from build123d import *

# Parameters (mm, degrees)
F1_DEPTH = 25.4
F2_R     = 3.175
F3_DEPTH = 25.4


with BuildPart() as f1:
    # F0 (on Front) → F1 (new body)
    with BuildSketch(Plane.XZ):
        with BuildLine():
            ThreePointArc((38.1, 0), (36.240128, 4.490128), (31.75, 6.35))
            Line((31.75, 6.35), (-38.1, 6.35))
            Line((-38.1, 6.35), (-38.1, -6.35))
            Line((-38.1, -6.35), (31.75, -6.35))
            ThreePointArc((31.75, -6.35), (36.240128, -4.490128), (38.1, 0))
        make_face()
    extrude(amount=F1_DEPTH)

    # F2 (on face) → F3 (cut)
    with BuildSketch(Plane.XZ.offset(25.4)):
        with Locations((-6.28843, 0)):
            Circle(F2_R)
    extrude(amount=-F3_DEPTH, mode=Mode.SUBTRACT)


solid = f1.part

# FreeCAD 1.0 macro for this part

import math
import FreeCAD as App
import Part
import Sketcher

V = App.Vector
Q = App.Units.Quantity

doc = App.newDocument("Part")
body = doc.addObject("PartDesign::Body", "Body")

sketch1 = body.newObject("Sketcher::SketchObject", "Sketch")
sketch1.AttachmentSupport = (doc.getObject("XZ_Plane"), [""])
sketch1.MapMode = "FlatFace"
sketch1.addGeometry([
    Part.ArcOfCircle(Part.Circle(V(32, 0, 0), V(0, 0, 1), 6), math.radians(0), math.radians(90)),
    Part.LineSegment(V(32, 6, 0), V(-38, 6, 0)),
    Part.LineSegment(V(-38, 6, 0), V(-38, -6, 0)),
    Part.LineSegment(V(-38, -6, 0), V(32, -6, 0)),
    Part.ArcOfCircle(Part.Circle(V(32, 0, 0), V(0, 0, 1), 6), math.radians(-90), math.radians(0)),
], False)
sketch1.addConstraint([
    Sketcher.Constraint("Tangent", 0, 2, 1, 1),
    Sketcher.Constraint("Coincident", 1, 2, 2, 1),
    Sketcher.Constraint("Coincident", 2, 2, 3, 1),
    Sketcher.Constraint("Tangent", 3, 2, 4, 1),
    Sketcher.Constraint("Tangent", 4, 2, 0, 1),
    Sketcher.Constraint("Horizontal", 1),
    Sketcher.Constraint("Vertical", 2),
    Sketcher.Constraint("Horizontal", 3),
    Sketcher.Constraint("Equal", 0, 4),
    Sketcher.Constraint("PointOnObject", 0, 3, -1),
    Sketcher.Constraint("PointOnObject", 4, 2, -1),
    Sketcher.Constraint("Radius", 0, Q("0.25 in")),
    Sketcher.Constraint("DistanceX", 1, 2, 4, 2, Q("3 in")),
    Sketcher.Constraint("DistanceX", 1, 2, -1, 1, Q("1.5 in")),
])
pad1 = body.newObject("PartDesign::Pad", "Pad")
pad1.Profile = sketch1
pad1.Length = Q("1 in")

sketch2 = body.newObject("Sketcher::SketchObject", "Sketch001")
sketch2.AttachmentSupport = (doc.getObject("XZ_Plane"), [""])
sketch2.MapMode = "FlatFace"
sketch2.AttachmentOffset = App.Placement(V(0, 0, 1 * 25.4), App.Rotation())
sketch2.addGeometry(Part.Circle(V(-6.3, 0, 0), V(0, 0, 1), 3.2), False)
sketch2.addConstraint([
    Sketcher.Constraint("PointOnObject", 0, 3, -1),
    Sketcher.Constraint("Diameter", 0, Q("0.25 in")),
    Sketcher.Constraint("DistanceX", 0, 3, -1, 1, Q("6.28843 mm")),
])
pocket1 = body.newObject("PartDesign::Pocket", "Pocket")
pocket1.Profile = sketch2
pocket1.Length = Q("1 in")

doc.recompute()
